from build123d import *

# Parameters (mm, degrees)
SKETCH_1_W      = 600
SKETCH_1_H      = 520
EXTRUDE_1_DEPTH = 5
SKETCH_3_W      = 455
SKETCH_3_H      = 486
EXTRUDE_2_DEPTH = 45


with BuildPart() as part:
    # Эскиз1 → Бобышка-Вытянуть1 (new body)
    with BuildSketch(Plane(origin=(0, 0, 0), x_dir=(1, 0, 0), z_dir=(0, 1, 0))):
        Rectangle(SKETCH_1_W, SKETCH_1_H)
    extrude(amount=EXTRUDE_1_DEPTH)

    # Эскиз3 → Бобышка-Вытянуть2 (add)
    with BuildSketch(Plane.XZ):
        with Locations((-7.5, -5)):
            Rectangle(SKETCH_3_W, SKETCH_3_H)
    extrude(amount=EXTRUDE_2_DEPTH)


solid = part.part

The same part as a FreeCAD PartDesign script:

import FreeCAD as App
import Part
import Sketcher

V = App.Vector


def add_polygon(sketch, points):
    """Adds a closed chain of lines whose ends are joined by coincident constraints."""
    first, n = sketch.GeometryCount, len(points)
    for a, b in zip(points, points[1:] + points[:1]):
        sketch.addGeometry(Part.LineSegment(App.Vector(*a, 0), App.Vector(*b, 0)), False)
    for i in range(n):
        sketch.addConstraint(Sketcher.Constraint("Coincident", first + i, 2, first + (i + 1) % n, 1))

doc = App.newDocument("Part")
body = doc.addObject("PartDesign::Body", "Body")

# Sketch on XZ plane
sketch1 = body.newObject("Sketcher::SketchObject", "Sketch")
sketch1.AttachmentSupport = (doc.getObject("XZ_Plane"), [""])
sketch1.MapMode = "FlatFace"
add_polygon(sketch1, [(-300, -260), (-300, 260), (300, 260), (300, -260)])  # lines 0-3
sketch1.addConstraint([
    Sketcher.Constraint("Vertical", 0),
    Sketcher.Constraint("Horizontal", 1),
    Sketcher.Constraint("Vertical", 2),
    Sketcher.Constraint("Horizontal", 3),
    Sketcher.Constraint("Symmetric", 0, 2, 2, 2, -1, 1),
    Sketcher.Constraint("DistanceX", 1, 1, 1, 2, 600.0),
    Sketcher.Constraint("DistanceY", 0, 1, 0, 2, 520.0),
])
pad1 = body.newObject("PartDesign::Pad", "Pad")
pad1.Profile = sketch1
pad1.Length = 5
pad1.Reversed = True

# Sketch on XZ plane
sketch2 = body.newObject("Sketcher::SketchObject", "Sketch001")
sketch2.AttachmentSupport = (doc.getObject("XZ_Plane"), [""])
sketch2.MapMode = "FlatFace"
add_polygon(sketch2, [(-235, 238), (-235, -248), (220, -248), (220, 238)])  # lines 0-3
sketch2.addConstraint([
    Sketcher.Constraint("Vertical", 0),
    Sketcher.Constraint("Horizontal", 1),
    Sketcher.Constraint("Vertical", 2),
    Sketcher.Constraint("Horizontal", 3),
    Sketcher.Constraint("DistanceX", 1, 1, 1, 2, 455.0),
    Sketcher.Constraint("DistanceY", 0, 2, 0, 1, 486.0),
    Sketcher.Constraint("DistanceX", 0, 2, -1, 1, 235.0),
    Sketcher.Constraint("DistanceY", 0, 2, -1, 1, 248.0),
])
pad2 = body.newObject("PartDesign::Pad", "Pad001")
pad2.Profile = sketch2
pad2.Length = 45

doc.recompute()
